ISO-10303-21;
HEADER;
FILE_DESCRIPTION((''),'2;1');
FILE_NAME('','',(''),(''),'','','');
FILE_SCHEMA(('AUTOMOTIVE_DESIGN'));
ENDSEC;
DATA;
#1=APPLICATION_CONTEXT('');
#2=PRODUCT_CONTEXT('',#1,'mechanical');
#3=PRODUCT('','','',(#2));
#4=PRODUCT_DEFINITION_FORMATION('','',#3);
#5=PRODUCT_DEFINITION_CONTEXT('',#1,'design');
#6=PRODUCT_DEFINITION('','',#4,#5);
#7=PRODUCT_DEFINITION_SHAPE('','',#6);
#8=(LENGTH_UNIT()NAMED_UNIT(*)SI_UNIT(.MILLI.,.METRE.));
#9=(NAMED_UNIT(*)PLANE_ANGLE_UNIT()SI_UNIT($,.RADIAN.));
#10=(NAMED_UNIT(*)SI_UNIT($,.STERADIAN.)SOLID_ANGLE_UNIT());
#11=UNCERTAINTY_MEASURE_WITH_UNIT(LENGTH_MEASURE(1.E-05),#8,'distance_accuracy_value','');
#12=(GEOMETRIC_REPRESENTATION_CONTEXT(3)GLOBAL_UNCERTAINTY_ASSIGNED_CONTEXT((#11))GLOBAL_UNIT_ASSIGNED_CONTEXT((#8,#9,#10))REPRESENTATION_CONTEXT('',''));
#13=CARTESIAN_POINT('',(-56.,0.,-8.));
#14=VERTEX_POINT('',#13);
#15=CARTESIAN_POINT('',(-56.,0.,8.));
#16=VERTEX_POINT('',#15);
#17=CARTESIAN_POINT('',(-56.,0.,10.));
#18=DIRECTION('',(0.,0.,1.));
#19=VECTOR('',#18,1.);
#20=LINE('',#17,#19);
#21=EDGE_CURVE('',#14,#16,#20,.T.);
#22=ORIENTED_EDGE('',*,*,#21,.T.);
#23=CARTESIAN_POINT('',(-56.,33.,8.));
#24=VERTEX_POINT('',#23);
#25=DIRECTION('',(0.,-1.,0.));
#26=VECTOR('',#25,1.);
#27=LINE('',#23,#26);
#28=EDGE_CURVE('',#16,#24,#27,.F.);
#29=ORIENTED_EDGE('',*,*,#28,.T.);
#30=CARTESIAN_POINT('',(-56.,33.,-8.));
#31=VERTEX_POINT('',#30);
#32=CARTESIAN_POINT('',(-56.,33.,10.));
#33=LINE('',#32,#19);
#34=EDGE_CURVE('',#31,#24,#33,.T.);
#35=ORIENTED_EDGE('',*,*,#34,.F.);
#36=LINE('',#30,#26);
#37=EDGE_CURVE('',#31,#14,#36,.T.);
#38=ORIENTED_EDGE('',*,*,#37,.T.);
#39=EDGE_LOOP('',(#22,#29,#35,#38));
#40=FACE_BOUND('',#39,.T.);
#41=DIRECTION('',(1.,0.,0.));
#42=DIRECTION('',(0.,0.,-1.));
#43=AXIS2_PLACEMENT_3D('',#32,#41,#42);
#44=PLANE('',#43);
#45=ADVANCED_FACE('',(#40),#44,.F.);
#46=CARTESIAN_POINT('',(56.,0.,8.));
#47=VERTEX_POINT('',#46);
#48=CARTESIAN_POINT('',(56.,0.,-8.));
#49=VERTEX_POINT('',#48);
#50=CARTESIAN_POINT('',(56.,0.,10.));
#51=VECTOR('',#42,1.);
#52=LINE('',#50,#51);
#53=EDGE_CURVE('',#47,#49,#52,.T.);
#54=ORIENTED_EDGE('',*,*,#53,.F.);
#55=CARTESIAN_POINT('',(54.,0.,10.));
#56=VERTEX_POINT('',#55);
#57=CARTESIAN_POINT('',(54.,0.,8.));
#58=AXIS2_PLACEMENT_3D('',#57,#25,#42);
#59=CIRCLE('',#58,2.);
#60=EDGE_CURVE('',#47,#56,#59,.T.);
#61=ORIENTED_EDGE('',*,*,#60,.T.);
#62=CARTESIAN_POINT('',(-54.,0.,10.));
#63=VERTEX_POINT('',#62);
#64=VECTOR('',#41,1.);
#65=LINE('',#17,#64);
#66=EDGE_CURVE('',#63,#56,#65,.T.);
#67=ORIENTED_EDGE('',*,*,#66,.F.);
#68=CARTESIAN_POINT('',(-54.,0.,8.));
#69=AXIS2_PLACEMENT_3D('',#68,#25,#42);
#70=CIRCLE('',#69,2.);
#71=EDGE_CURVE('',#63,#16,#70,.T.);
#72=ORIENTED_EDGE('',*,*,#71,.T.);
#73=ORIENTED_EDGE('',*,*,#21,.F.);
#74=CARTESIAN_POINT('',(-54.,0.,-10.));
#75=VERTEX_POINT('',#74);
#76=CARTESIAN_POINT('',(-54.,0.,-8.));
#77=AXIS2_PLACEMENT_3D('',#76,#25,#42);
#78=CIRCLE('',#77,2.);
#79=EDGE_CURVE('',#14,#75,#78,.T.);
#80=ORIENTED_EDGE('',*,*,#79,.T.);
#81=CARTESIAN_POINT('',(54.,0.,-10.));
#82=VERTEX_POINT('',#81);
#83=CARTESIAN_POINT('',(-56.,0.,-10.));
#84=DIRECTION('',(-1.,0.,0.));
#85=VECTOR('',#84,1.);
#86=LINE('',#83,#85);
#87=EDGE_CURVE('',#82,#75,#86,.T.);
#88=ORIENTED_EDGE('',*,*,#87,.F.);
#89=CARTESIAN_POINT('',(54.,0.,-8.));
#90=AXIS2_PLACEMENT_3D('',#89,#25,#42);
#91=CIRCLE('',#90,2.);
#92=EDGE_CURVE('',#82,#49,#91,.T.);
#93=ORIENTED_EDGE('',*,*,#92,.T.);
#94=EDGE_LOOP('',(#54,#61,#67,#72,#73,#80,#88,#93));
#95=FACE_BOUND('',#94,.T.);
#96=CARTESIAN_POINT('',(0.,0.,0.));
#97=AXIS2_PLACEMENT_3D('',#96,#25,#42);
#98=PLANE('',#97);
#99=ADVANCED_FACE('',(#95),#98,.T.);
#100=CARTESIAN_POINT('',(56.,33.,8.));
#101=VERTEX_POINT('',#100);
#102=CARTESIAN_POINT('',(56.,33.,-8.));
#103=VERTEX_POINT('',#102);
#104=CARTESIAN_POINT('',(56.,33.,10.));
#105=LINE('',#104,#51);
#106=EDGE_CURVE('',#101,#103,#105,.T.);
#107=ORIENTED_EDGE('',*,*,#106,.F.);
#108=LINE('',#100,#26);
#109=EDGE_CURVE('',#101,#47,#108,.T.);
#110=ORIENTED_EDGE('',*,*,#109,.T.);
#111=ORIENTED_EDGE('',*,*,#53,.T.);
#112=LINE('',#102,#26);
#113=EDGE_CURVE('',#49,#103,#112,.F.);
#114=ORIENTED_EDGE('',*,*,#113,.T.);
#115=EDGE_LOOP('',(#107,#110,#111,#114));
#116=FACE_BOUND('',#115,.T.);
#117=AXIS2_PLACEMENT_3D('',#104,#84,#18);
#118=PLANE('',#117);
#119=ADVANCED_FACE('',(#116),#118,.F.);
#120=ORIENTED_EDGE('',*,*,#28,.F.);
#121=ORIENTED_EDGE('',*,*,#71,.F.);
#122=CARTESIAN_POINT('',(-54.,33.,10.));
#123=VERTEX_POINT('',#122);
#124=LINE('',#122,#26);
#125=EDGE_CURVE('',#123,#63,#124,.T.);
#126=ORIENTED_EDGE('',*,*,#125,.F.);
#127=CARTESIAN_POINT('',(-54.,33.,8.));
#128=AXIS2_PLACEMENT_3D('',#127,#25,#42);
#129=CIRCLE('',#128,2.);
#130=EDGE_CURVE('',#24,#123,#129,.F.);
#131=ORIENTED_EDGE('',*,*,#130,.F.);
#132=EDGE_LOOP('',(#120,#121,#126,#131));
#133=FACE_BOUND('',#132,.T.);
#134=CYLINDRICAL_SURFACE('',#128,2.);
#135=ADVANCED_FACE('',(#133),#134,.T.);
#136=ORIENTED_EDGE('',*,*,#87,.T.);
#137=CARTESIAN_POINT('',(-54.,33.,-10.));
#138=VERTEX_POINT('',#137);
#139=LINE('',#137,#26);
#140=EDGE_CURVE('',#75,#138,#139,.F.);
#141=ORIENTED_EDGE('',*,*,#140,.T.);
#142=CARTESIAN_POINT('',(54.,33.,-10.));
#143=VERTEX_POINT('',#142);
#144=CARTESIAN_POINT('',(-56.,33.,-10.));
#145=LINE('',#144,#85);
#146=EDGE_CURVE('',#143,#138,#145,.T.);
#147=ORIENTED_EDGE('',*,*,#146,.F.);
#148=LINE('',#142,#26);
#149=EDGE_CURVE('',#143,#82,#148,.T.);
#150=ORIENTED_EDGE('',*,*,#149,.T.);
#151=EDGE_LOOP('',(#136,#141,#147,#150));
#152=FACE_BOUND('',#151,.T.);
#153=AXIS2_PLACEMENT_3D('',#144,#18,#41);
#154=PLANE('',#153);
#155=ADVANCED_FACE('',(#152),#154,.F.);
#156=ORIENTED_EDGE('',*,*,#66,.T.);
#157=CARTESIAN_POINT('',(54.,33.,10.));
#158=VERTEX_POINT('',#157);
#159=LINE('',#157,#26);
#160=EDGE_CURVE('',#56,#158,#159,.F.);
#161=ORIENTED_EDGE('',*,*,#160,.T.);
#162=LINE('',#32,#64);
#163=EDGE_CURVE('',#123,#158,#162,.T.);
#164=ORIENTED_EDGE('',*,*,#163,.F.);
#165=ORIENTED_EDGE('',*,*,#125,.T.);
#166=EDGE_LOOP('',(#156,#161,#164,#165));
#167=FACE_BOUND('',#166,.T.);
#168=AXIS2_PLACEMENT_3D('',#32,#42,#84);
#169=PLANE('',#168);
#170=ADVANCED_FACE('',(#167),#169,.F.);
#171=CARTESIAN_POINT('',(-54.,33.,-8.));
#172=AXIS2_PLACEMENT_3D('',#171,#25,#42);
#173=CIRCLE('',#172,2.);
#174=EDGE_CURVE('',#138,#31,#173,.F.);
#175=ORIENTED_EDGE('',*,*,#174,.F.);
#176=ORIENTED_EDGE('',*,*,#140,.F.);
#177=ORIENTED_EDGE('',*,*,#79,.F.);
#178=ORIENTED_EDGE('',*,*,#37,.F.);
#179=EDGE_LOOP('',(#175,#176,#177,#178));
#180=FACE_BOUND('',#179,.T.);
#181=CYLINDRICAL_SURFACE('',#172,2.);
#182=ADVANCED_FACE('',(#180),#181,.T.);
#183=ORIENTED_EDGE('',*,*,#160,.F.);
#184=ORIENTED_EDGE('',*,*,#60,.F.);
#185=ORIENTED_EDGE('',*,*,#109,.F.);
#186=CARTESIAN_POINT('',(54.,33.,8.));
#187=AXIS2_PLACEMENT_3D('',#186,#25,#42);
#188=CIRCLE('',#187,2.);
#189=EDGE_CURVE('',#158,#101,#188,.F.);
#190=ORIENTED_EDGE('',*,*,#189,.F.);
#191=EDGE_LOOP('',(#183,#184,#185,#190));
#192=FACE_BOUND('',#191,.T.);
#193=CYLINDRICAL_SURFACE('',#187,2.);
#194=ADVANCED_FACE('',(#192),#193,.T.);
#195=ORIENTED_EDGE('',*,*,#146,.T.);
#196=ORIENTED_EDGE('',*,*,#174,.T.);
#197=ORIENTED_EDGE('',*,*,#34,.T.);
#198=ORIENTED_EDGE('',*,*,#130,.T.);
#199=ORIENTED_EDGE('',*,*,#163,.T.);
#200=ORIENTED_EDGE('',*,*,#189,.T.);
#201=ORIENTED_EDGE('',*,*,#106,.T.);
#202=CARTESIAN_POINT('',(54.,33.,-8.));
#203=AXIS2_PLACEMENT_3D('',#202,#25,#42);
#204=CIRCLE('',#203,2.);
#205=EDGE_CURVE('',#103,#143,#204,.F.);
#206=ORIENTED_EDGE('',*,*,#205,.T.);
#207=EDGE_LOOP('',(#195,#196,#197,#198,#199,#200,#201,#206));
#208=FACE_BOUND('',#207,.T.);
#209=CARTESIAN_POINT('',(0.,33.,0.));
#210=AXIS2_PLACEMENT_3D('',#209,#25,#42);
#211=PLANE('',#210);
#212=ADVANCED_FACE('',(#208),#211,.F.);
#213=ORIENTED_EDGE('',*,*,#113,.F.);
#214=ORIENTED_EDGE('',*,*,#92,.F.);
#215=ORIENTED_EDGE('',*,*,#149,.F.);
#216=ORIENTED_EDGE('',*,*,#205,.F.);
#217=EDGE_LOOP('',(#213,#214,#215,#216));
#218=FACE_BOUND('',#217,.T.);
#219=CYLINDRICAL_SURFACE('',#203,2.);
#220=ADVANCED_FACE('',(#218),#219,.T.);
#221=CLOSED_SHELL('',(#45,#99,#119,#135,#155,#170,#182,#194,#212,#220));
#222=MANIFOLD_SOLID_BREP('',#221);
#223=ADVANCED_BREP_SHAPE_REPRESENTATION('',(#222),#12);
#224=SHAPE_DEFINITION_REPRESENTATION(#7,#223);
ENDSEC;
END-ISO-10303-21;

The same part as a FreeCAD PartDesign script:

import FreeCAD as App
import Part
import Sketcher
from FreeCAD import Vector


def edges_at(feature, points):
    """Names of the edges that pass closest to the given points."""
    edges = feature.Shape.Edges
    near = lambda p: min(range(len(edges)), key=lambda i: edges[i].distToShape(Part.Vertex(*p))[0])
    return sorted({f"Edge{near(p) + 1}" for p in points})

doc = App.newDocument("Part")
body = doc.addObject("PartDesign::Body", "Body")

# Sketch on XZ plane
sketch1 = body.newObject("Sketcher::SketchObject", "Sketch")
sketch1.AttachmentSupport = (doc.getObject("XZ_Plane"), [""])
sketch1.MapMode = "FlatFace"
sketch1.addGeometry([
    Part.LineSegment(Vector(-56, -10, 0), Vector(-56, 10, 0)),
    Part.LineSegment(Vector(-56, 10, 0), Vector(56, 10, 0)),
    Part.LineSegment(Vector(56, 10, 0), Vector(56, -10, 0)),
    Part.LineSegment(Vector(56, -10, 0), Vector(-56, -10, 0)),
], False)
sketch1.addConstraint([
    Sketcher.Constraint("Coincident", 0, 2, 1, 1),
    Sketcher.Constraint("Coincident", 1, 2, 2, 1),
    Sketcher.Constraint("Coincident", 2, 2, 3, 1),
    Sketcher.Constraint("Coincident", 3, 2, 0, 1),
    Sketcher.Constraint("Vertical", 0),
    Sketcher.Constraint("Horizontal", 1),
    Sketcher.Constraint("Vertical", 2),
    Sketcher.Constraint("Horizontal", 3),
    Sketcher.Constraint("Symmetric", 0, 2, 2, 2, -1, 1),
    Sketcher.Constraint("DistanceX", 1, 1, 1, 2, 112.0),
    Sketcher.Constraint("DistanceY", 0, 1, 0, 2, 20.0),
])
pad1 = body.newObject("PartDesign::Pad", "Pad")
pad1.Profile = sketch1
pad1.Length = 33
pad1.Reversed = True
doc.recompute()

fillet = body.newObject("PartDesign::Fillet", "Fillet")
fillet.Base = (pad1, edges_at(pad1, [
    (56, 16.5, 10),
    (-56, 16.5, 10),
    (-56, 16.5, -10),
    (56, 16.5, -10),
]))
fillet.Radius = 2

doc.recompute()
